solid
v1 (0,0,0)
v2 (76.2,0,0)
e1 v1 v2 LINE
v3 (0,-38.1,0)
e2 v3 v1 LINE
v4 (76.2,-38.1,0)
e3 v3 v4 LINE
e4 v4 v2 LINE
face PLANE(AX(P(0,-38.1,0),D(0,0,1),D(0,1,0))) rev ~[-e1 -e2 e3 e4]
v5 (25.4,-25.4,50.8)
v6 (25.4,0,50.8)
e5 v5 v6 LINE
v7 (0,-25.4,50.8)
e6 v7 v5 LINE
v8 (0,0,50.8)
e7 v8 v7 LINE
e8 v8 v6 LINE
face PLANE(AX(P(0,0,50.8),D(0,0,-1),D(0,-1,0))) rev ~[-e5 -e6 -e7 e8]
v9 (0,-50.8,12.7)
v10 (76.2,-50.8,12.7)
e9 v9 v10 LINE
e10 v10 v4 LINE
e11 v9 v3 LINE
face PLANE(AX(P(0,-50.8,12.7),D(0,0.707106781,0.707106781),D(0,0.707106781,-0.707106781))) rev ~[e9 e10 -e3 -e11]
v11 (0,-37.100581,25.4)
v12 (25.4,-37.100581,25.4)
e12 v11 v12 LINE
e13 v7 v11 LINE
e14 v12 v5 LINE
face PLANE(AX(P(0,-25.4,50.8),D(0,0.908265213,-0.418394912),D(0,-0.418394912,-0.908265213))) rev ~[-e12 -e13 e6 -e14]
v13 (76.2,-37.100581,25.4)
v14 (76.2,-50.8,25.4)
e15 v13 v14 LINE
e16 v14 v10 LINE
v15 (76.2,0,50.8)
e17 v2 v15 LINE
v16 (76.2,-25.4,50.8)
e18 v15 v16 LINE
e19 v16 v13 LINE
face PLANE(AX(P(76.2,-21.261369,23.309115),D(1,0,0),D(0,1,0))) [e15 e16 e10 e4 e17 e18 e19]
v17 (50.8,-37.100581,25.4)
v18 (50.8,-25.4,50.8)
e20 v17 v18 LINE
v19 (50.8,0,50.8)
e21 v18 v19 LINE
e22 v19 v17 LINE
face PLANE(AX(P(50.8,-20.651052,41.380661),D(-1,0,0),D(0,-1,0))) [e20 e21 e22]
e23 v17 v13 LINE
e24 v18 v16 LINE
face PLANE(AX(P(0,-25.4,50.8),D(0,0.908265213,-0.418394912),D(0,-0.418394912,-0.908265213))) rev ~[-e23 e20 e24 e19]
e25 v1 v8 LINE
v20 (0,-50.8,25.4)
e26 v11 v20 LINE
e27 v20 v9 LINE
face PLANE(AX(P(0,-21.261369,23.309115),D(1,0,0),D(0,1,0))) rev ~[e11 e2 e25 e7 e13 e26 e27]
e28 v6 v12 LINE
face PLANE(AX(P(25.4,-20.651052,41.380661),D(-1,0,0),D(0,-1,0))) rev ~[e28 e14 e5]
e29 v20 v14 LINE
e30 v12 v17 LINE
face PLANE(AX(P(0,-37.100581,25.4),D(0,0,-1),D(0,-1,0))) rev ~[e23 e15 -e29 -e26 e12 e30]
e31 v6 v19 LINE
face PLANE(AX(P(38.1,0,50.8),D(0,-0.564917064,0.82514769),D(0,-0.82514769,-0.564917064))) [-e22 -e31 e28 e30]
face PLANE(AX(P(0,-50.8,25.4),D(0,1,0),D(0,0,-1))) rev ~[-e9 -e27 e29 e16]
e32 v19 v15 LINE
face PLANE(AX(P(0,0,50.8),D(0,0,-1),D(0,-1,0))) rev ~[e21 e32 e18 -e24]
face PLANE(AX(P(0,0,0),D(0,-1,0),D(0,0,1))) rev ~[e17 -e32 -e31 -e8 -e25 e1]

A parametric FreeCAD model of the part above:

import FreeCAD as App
import Part
import Sketcher

V = App.Vector
Q = App.Units.Quantity


def add_polygon(sketch, points):
    """Adds a closed chain of lines whose ends are joined by coincident constraints."""
    first, n = sketch.GeometryCount, len(points)
    for a, b in zip(points, points[1:] + points[:1]):
        sketch.addGeometry(Part.LineSegment(App.Vector(*a, 0), App.Vector(*b, 0)), False)
    for i in range(n):
        sketch.addConstraint(Sketcher.Constraint("Coincident", first + i, 2, first + (i + 1) % n, 1))

doc = App.newDocument("Part")
body = doc.addObject("PartDesign::Body", "Body")

# Sketch on YZ plane
sketch1 = doc.addObject("Sketcher::SketchObject", "Sketch")
body.addObject(sketch1)
sketch1.AttachmentSupport = (doc.YZ_Plane, [""])
sketch1.MapMode = "FlatFace"
add_polygon(sketch1, [(-38.1, 0), (0, 0), (0, 50.8), (-25.4, 50.8), (-37.100581, 25.4), (-50.8, 25.4), (-50.8, 12.7)])  # lines 0-6
sketch1.addConstraint([
    Sketcher.Constraint("Horizontal", 0),
    Sketcher.Constraint("Vertical", 1),
    Sketcher.Constraint("Horizontal", 2),
    Sketcher.Constraint("Horizontal", 4),
    Sketcher.Constraint("Vertical", 5),
    Sketcher.Constraint("Coincident", 0, 2, -1, 1),
    Sketcher.Constraint("DistanceX", 2, 2, 2, 1, Q("1 in")),
    Sketcher.Constraint("DistanceY", 1, 1, 1, 2, Q("2 in")),
    Sketcher.Constraint("DistanceX", 0, 1, 0, 2, Q("1.5 in")),
    Sketcher.Constraint("DistanceY", 5, 2, 5, 1, Q("0.5 in")),
    Sketcher.Constraint("DistanceY", -1, 1, 3, 2, Q("1 in")),
    Sketcher.Constraint("DistanceX", 4, 2, -1, 1, Q("2 in")),
    Sketcher.Constraint("Distance", 3, Q("1.101 in")),
])
pad1 = doc.addObject("PartDesign::Pad", "Pad")
body.addObject(pad1)
pad1.Profile = sketch1
pad1.Length = Q("3 in")

# Sketch on YZ plane
sketch2 = doc.addObject("Sketcher::SketchObject", "Sketch001")
body.addObject(sketch2)
sketch2.AttachmentSupport = (doc.YZ_Plane, [""])
sketch2.MapMode = "FlatFace"
sketch2.AttachmentOffset = App.Placement(V(0, 0, 1.5 * 25.4), App.Rotation())
add_polygon(sketch2, [(-25.4, 50.8), (0, 50.8), (-37.100581, 25.4)])  # lines 0-2
sketch2.addConstraint([
    Sketcher.Constraint("Horizontal", 0),
    Sketcher.Constraint("PointOnObject", 0, 2, -2),
    Sketcher.Constraint("DistanceX", 0, 1, 0, 2, Q("1 in")),
    Sketcher.Constraint("DistanceY", -1, 1, 0, 2, Q("2 in")),
    Sketcher.Constraint("DistanceY", -1, 1, 1, 2, Q("1 in")),
    Sketcher.Constraint("Distance", 2, Q("1.101 in")),
])
pocket1 = doc.addObject("PartDesign::Pocket", "Pocket")
body.addObject(pocket1)
pocket1.Profile = sketch2
pocket1.Type = "TwoLengths"
pocket1.Length = Q("0.5 in")
pocket1.Length2 = Q("0.5 in")
pocket1.Reversed = True

doc.recompute()
